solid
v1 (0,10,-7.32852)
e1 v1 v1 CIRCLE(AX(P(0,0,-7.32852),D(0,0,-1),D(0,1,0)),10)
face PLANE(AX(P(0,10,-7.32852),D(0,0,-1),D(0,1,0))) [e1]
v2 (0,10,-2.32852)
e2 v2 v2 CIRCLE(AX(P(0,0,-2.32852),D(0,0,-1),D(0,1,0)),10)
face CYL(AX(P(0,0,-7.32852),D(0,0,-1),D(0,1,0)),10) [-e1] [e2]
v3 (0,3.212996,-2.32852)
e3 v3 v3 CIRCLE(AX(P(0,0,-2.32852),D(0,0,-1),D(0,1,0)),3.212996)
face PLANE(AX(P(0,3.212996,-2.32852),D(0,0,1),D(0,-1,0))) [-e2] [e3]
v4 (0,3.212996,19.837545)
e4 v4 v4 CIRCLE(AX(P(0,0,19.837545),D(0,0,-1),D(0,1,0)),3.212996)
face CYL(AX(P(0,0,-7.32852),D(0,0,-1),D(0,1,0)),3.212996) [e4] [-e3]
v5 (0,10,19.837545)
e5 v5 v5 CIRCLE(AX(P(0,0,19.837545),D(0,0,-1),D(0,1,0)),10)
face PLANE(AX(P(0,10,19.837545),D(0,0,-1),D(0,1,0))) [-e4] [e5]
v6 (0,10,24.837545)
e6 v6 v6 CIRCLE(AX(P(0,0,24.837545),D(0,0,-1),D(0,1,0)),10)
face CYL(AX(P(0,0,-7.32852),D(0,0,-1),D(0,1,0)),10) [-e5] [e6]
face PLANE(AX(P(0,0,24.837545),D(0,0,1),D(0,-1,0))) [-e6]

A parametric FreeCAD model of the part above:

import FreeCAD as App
import Part
import Sketcher
from FreeCAD import Vector


def add_polygon(sketch, points):
    """Adds a closed chain of lines whose ends are joined by coincident constraints."""
    first, n = sketch.GeometryCount, len(points)
    for a, b in zip(points, points[1:] + points[:1]):
        sketch.addGeometry(Part.LineSegment(App.Vector(*a, 0), App.Vector(*b, 0)), False)
    for i in range(n):
        sketch.addConstraint(Sketcher.Constraint("Coincident", first + i, 2, first + (i + 1) % n, 1))

doc = App.newDocument("Part")
params = doc.addObject("Spreadsheet::Sheet", "Params")
for row, (alias, value) in enumerate([
    ("sketch1_width", "10 mm"),
    ("sketch1_height", "5 mm"),
    ("revolution_angle", "360 deg"),
], start=1):
    params.set(f"A{row}", alias)
    params.set(f"B{row}", "=" + value)
    params.setAlias(f"B{row}", alias)

body = doc.addObject("PartDesign::Body", "Body")

# Sketch on YZ plane
sketch1 = body.newObject("Sketcher::SketchObject", "Sketch")
sketch1.AttachmentSupport = (doc.getObject("YZ_Plane"), [""])
sketch1.MapMode = "FlatFace"
add_polygon(sketch1, [(0, 25), (0, -7), (10, -7), (10, -2), (3, -2), (3, 20), (10, 20), (10, 25)])  # lines 0-7
sketch1.addConstraint(Sketcher.Constraint("Vertical", 0))
sketch1.addConstraint(Sketcher.Constraint("Horizontal", 1))
sketch1.addConstraint(Sketcher.Constraint("Vertical", 2))
sketch1.addConstraint(Sketcher.Constraint("Horizontal", 3))
sketch1.addConstraint(Sketcher.Constraint("Vertical", 4))
sketch1.addConstraint(Sketcher.Constraint("Horizontal", 5))
sketch1.addConstraint(Sketcher.Constraint("Vertical", 6))
sketch1.addConstraint(Sketcher.Constraint("Horizontal", 7))
sketch1.addConstraint(Sketcher.Constraint("PointOnObject", 0, 2, -2))
sketch1.addConstraint(Sketcher.Constraint("Vertical", 2, 2, 5, 2))
sketch1.addConstraint(Sketcher.Constraint("Equal", 2, 6))
sketch1.addConstraint(Sketcher.Constraint("DistanceX", 1, 1, 1, 2, 10.0))
sketch1.addConstraint(Sketcher.Constraint("DistanceY", 2, 1, 2, 2, 5.0))
sketch1.addConstraint(Sketcher.Constraint("DistanceX", 3, 2, 3, 1, 6.787004))
sketch1.addConstraint(Sketcher.Constraint("DistanceY", 0, 2, 0, 1, 32.166065))
sketch1.addConstraint(Sketcher.Constraint("DistanceY", 0, 2, -1, 1, 7.32852))
sketch1.setExpression("Constraints[19]", "Params.sketch1_width")
sketch1.setExpression("Constraints[20]", "Params.sketch1_height")
revolution = body.newObject("PartDesign::Revolution", "Revolution")
revolution.Profile = sketch1
revolution.ReferenceAxis = (sketch1, ["V_Axis"])
revolution.setExpression("Angle", "Params.revolution_angle")

doc.recompute()
